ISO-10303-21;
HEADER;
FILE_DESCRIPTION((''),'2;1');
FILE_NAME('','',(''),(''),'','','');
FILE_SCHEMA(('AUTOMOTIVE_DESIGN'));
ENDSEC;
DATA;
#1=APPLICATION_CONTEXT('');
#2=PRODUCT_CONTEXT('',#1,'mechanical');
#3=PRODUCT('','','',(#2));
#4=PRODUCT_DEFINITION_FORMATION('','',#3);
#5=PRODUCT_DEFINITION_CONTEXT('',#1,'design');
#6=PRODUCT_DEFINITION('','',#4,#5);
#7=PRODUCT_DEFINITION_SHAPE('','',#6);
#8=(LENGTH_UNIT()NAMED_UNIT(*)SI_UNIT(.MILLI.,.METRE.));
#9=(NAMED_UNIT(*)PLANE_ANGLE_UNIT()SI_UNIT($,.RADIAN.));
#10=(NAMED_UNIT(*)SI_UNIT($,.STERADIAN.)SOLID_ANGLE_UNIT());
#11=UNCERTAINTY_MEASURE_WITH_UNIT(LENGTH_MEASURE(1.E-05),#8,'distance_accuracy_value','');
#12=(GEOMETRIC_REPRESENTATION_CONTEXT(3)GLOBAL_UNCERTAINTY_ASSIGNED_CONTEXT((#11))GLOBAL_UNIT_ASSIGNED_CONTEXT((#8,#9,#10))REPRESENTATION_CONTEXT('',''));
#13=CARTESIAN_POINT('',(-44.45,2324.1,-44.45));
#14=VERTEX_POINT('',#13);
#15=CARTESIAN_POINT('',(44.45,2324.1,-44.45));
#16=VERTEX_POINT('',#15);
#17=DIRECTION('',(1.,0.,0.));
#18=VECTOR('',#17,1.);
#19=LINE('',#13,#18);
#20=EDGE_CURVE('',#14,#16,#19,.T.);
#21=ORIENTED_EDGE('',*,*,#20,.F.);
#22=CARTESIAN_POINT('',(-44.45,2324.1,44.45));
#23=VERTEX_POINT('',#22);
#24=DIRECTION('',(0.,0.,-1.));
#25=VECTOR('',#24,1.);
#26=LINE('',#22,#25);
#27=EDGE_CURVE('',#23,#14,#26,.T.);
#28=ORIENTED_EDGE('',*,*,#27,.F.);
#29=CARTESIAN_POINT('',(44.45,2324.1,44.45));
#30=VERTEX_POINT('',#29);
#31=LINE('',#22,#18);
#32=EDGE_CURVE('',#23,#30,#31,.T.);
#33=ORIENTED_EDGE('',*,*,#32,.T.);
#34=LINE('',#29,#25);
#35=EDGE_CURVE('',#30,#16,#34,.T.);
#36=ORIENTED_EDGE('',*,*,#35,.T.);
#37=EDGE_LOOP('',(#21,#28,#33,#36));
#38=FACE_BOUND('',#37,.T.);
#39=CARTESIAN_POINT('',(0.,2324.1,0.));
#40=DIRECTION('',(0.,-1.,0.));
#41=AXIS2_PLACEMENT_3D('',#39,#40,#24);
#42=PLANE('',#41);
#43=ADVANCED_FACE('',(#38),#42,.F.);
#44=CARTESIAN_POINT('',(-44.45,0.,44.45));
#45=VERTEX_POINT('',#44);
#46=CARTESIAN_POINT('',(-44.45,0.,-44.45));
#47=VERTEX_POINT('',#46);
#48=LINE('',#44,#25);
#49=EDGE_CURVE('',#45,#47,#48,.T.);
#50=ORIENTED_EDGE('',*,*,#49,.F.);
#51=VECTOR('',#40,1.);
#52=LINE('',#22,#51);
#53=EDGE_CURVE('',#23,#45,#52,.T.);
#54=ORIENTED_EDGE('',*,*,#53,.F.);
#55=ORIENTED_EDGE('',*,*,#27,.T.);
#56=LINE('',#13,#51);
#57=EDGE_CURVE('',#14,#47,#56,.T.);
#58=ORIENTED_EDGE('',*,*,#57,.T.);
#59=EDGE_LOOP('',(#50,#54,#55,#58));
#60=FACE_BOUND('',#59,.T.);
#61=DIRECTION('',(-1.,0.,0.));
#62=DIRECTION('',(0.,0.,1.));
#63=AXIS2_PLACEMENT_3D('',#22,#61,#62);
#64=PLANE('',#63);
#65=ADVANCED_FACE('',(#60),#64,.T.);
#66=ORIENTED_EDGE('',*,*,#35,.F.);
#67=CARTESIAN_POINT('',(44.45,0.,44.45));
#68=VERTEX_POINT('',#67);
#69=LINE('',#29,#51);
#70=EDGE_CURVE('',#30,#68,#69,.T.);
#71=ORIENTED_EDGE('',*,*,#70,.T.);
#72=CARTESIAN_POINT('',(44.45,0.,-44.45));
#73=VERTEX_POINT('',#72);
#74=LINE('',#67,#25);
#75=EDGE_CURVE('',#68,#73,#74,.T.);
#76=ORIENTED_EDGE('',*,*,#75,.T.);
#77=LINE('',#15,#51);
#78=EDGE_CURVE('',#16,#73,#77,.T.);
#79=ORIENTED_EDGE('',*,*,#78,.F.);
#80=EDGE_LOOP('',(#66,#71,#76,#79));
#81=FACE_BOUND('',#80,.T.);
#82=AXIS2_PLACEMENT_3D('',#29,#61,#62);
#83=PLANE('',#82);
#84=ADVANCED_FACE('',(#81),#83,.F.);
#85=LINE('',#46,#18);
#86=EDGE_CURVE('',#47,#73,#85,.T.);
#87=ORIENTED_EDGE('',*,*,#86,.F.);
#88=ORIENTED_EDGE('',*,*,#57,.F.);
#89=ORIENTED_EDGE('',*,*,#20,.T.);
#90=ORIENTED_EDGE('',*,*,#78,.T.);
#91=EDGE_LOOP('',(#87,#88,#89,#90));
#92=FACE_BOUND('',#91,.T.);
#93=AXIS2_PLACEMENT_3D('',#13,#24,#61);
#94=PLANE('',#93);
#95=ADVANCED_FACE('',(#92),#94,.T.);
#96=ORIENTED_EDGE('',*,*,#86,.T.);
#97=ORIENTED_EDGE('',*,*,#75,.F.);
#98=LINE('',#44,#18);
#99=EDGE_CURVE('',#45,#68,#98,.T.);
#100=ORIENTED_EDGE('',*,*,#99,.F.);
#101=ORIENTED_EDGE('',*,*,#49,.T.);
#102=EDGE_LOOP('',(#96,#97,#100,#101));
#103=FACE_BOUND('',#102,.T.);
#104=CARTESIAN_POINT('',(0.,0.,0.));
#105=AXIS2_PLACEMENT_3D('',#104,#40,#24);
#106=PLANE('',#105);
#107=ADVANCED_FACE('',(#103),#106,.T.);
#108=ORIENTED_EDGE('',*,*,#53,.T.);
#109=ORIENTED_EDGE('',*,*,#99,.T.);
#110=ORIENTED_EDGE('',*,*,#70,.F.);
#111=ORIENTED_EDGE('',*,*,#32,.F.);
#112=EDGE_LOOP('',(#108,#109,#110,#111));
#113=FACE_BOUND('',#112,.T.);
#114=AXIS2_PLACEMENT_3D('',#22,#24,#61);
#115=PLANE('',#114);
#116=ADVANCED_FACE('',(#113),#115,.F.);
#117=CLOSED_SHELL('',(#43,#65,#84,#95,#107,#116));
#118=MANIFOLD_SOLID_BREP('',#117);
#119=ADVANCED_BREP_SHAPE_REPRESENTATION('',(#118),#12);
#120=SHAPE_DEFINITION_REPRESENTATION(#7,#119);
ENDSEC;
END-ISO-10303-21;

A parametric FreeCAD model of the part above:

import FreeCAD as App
import Part
import Sketcher
Q = App.Units.Quantity

doc = App.newDocument("Part")
body = doc.addObject("PartDesign::Body", "Body")

sketch1 = doc.addObject("Sketcher::SketchObject", "Sketch")
body.addObject(sketch1)
sketch1.AttachmentSupport = (doc.XZ_Plane, [""])
sketch1.MapMode = "FlatFace"
sketch1.addGeometry(Part.LineSegment(App.Vector(-44, -44, 0), App.Vector(-44, 44, 0)), False)
sketch1.addGeometry(Part.LineSegment(App.Vector(-44, 44, 0), App.Vector(44, 44, 0)), False)
sketch1.addGeometry(Part.LineSegment(App.Vector(44, 44, 0), App.Vector(44, -44, 0)), False)
sketch1.addGeometry(Part.LineSegment(App.Vector(44, -44, 0), App.Vector(-44, -44, 0)), False)
sketch1.addConstraint(Sketcher.Constraint("Coincident", 0, 2, 1, 1))
sketch1.addConstraint(Sketcher.Constraint("Coincident", 1, 2, 2, 1))
sketch1.addConstraint(Sketcher.Constraint("Coincident", 2, 2, 3, 1))
sketch1.addConstraint(Sketcher.Constraint("Coincident", 3, 2, 0, 1))
sketch1.addConstraint(Sketcher.Constraint("Vertical", 0))
sketch1.addConstraint(Sketcher.Constraint("Horizontal", 1))
sketch1.addConstraint(Sketcher.Constraint("Vertical", 2))
sketch1.addConstraint(Sketcher.Constraint("Horizontal", 3))
sketch1.addConstraint(Sketcher.Constraint("Symmetric", 0, 2, 2, 2, -1, 1))
sketch1.addConstraint(Sketcher.Constraint("Equal", 3, 0))
sketch1.addConstraint(Sketcher.Constraint("DistanceX", 1, 1, 1, 2, Q("3.5 in")))
pad1 = doc.addObject("PartDesign::Pad", "Pad")
body.addObject(pad1)
pad1.Profile = sketch1
pad1.Length = Q("91.5 in")
pad1.Reversed = True

doc.recompute()
